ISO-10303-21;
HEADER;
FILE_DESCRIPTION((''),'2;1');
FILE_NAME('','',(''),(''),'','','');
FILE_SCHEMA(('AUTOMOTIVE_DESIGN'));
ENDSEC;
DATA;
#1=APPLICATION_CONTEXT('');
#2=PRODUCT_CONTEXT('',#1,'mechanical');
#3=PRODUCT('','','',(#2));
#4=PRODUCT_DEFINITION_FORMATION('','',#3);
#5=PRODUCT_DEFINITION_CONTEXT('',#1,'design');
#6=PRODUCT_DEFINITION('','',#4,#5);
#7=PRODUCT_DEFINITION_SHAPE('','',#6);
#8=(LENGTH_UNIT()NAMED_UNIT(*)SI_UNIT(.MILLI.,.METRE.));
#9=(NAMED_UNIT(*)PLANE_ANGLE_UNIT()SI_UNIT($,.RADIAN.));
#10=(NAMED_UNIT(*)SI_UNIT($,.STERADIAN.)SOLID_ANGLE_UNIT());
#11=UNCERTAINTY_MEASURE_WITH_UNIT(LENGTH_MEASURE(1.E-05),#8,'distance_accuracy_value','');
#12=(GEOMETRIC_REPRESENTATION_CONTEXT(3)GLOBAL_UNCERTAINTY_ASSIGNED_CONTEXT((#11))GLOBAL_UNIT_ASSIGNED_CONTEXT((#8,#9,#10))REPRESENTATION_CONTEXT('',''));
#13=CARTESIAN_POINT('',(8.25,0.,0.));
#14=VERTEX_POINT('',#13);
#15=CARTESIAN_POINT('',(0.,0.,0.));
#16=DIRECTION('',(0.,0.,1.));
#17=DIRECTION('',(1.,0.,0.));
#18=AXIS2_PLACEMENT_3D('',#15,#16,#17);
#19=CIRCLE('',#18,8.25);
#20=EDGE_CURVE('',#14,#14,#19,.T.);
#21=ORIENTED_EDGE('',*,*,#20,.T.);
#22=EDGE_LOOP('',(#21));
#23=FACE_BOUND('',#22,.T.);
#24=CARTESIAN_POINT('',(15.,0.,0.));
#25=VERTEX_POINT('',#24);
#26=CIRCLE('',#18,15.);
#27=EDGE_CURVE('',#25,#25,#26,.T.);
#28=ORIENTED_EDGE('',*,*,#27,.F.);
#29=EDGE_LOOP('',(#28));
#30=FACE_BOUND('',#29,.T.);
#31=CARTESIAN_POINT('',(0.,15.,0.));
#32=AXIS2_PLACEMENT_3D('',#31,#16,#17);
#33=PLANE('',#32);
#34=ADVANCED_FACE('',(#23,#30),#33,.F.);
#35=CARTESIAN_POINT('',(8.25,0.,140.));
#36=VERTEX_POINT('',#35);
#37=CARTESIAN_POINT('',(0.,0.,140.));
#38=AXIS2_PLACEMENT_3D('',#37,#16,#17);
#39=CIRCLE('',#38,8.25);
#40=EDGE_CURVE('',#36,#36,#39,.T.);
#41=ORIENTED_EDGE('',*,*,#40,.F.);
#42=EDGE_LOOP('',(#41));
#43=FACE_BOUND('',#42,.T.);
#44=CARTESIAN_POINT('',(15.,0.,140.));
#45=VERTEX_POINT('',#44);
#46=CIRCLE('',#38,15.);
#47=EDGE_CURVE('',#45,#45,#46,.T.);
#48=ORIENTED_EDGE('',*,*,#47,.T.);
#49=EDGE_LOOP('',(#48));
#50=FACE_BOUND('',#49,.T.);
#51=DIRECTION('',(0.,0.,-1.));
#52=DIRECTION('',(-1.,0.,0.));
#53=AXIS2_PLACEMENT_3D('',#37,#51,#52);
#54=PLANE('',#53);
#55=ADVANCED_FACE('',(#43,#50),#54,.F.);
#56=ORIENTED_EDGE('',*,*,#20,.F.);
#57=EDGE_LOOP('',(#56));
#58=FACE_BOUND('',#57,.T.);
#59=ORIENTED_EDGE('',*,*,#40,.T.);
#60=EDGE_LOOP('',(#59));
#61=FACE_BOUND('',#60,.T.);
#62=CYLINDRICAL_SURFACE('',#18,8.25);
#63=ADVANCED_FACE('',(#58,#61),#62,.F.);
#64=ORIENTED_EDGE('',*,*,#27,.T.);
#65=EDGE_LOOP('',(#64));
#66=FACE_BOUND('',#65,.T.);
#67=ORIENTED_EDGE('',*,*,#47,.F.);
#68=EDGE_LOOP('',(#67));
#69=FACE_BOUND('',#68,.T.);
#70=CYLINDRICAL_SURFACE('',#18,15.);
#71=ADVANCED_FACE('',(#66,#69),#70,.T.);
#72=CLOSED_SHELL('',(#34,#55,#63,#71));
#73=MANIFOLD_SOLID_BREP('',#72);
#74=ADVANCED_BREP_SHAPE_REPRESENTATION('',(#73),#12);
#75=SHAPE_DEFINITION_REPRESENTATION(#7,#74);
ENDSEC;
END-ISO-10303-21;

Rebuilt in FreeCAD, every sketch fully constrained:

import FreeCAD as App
import Part
import Sketcher
from FreeCAD import Vector


def add_polygon(sketch, points):
    """Adds a closed chain of lines whose ends are joined by coincident constraints."""
    first, n = sketch.GeometryCount, len(points)
    for a, b in zip(points, points[1:] + points[:1]):
        sketch.addGeometry(Part.LineSegment(App.Vector(*a, 0), App.Vector(*b, 0)), False)
    for i in range(n):
        sketch.addConstraint(Sketcher.Constraint("Coincident", first + i, 2, first + (i + 1) % n, 1))

doc = App.newDocument("Part")
body = doc.addObject("PartDesign::Body", "Body")

# Sketch on YZ plane
sketch1 = body.newObject("Sketcher::SketchObject", "Sketch")
sketch1.AttachmentSupport = (doc.getObject("YZ_Plane"), [""])
sketch1.MapMode = "FlatFace"
add_polygon(sketch1, [(15, 140), (0, 140), (0, 0), (15, 0)])  # lines 0-3
sketch1.addConstraint([
    Sketcher.Constraint("Horizontal", 0),
    Sketcher.Constraint("Vertical", 1),
    Sketcher.Constraint("Horizontal", 2),
    Sketcher.Constraint("Vertical", 3),
    Sketcher.Constraint("Coincident", 1, 2, -1, 1),
    Sketcher.Constraint("DistanceX", 0, 2, 0, 1, 15.0),
    Sketcher.Constraint("DistanceY", 1, 2, 1, 1, 140.0),
])
revolution = body.newObject("PartDesign::Revolution", "Revolution")
revolution.Profile = sketch1
revolution.ReferenceAxis = (sketch1, ["V_Axis"])
revolution.Angle = 360

# Sketch on YZ plane
sketch2 = body.newObject("Sketcher::SketchObject", "Sketch001")
sketch2.AttachmentSupport = (doc.getObject("YZ_Plane"), [""])
sketch2.MapMode = "FlatFace"
add_polygon(sketch2, [(8, 140), (0, 140), (0, 0), (8, 0)])  # lines 0-3
sketch2.addConstraint([
    Sketcher.Constraint("Horizontal", 0),
    Sketcher.Constraint("Vertical", 1),
    Sketcher.Constraint("Horizontal", 2),
    Sketcher.Constraint("Vertical", 3),
    Sketcher.Constraint("Coincident", 1, 2, -1, 1),
    Sketcher.Constraint("DistanceY", 1, 2, 1, 1, 140.0),
    Sketcher.Constraint("DistanceX", 0, 2, 0, 1, 8.25),
])
groove = body.newObject("PartDesign::Groove", "Groove")
groove.Profile = sketch2
groove.ReferenceAxis = (sketch2, ["V_Axis"])
groove.Angle = 360

doc.recompute()
